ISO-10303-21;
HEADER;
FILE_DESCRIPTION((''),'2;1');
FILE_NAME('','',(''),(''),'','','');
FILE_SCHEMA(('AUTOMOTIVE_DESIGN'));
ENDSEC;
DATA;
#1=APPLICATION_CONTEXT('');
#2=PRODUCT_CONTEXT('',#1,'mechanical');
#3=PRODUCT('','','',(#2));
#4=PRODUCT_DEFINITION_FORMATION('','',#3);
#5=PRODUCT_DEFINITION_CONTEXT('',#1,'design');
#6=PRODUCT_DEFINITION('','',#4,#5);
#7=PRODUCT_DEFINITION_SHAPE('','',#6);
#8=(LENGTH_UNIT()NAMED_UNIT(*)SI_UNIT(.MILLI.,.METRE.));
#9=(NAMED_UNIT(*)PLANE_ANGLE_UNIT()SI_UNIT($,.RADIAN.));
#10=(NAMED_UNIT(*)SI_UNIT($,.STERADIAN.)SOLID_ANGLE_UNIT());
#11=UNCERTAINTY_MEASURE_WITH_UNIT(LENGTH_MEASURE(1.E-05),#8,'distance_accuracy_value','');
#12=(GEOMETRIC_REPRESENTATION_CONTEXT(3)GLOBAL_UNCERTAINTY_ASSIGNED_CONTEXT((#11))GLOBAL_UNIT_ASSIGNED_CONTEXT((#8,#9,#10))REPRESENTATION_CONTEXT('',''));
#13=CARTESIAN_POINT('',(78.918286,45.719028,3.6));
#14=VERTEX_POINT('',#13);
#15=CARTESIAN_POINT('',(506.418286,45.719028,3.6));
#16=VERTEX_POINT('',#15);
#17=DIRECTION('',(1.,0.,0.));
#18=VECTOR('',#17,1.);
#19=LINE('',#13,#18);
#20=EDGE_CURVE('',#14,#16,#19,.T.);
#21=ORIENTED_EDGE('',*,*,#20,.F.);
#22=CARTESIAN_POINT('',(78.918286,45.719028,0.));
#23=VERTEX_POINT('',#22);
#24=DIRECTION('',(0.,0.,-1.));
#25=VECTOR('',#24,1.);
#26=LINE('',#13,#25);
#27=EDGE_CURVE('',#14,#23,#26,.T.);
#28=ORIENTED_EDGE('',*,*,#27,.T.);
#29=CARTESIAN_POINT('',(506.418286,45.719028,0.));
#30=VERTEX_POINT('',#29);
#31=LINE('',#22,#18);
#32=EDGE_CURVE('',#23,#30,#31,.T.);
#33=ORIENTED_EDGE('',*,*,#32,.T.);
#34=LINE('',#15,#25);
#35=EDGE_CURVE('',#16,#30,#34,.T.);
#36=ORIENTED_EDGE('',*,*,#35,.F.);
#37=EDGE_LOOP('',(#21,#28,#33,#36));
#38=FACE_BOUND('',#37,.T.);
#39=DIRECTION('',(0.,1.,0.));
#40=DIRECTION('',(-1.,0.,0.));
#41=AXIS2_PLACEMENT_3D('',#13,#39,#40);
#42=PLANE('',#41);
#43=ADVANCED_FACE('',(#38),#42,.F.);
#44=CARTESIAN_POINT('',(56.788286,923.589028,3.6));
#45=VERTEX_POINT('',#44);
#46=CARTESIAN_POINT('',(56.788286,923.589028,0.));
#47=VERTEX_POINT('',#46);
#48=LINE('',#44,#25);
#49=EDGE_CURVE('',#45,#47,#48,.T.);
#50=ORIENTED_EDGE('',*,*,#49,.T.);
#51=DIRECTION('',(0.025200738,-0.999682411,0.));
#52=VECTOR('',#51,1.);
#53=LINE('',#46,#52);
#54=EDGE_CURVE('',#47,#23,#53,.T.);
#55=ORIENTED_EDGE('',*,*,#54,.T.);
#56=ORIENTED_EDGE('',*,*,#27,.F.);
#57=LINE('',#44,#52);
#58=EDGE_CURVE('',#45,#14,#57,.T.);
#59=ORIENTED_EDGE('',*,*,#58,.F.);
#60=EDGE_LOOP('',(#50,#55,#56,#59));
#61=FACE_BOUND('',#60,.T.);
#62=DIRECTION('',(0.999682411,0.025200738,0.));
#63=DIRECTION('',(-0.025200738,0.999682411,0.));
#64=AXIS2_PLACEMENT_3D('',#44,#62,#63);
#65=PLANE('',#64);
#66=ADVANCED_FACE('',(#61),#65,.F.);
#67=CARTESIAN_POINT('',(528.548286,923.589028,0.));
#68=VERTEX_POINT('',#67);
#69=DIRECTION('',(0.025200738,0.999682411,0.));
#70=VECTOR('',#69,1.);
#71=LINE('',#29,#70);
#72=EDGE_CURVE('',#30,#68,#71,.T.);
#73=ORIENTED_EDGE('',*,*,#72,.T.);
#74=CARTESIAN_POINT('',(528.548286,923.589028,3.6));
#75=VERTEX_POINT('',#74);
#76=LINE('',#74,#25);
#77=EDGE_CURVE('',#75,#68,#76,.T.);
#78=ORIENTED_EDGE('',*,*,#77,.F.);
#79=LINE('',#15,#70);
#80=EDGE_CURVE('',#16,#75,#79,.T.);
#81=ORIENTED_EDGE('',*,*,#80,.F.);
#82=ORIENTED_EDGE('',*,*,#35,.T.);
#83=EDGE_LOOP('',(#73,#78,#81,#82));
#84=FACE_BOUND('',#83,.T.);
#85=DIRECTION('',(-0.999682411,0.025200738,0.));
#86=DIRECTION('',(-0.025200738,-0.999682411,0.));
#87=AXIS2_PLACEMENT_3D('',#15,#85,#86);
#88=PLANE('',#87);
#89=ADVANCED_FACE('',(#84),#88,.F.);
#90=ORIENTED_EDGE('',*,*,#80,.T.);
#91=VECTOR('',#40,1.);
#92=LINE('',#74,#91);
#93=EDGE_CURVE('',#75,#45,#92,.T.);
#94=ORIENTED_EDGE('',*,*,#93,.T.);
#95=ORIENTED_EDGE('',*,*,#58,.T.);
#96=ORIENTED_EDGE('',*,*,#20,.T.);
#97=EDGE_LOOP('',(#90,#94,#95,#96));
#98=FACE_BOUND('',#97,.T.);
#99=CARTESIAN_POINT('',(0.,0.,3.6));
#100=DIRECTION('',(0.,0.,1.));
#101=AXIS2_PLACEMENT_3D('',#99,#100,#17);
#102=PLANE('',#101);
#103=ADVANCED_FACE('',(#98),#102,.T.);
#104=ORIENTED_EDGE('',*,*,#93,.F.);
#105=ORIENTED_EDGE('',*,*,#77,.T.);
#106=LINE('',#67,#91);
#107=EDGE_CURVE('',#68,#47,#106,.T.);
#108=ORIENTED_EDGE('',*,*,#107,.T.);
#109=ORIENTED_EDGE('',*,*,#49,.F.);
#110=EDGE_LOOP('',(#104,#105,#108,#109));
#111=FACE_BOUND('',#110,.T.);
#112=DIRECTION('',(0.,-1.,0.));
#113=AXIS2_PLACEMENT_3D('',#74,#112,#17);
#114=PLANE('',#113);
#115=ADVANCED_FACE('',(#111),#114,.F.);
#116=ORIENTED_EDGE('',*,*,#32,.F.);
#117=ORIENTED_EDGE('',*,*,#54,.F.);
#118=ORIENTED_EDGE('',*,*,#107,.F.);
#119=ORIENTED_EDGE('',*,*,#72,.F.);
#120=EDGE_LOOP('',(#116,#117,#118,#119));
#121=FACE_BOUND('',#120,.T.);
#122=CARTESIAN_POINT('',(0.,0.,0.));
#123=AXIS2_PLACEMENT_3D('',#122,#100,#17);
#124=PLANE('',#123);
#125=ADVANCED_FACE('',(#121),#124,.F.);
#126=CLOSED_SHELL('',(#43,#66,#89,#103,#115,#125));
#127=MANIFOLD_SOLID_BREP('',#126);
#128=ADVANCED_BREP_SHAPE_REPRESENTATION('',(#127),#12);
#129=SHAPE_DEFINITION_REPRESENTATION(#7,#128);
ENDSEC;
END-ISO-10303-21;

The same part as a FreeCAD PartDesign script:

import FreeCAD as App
import Part
import Sketcher
from FreeCAD import Vector


def add_polygon(sketch, points):
    """Adds a closed chain of lines whose ends are joined by coincident constraints."""
    first, n = sketch.GeometryCount, len(points)
    for a, b in zip(points, points[1:] + points[:1]):
        sketch.addGeometry(Part.LineSegment(App.Vector(*a, 0), App.Vector(*b, 0)), False)
    for i in range(n):
        sketch.addConstraint(Sketcher.Constraint("Coincident", first + i, 2, first + (i + 1) % n, 1))

doc = App.newDocument("Part")
body = doc.addObject("PartDesign::Body", "Body")

sketch1 = body.newObject("Sketcher::SketchObject", "Sketch")
sketch1.AttachmentSupport = (doc.getObject("XY_Plane"), [""])
sketch1.MapMode = "FlatFace"
add_polygon(sketch1, [(79, 46), (506, 46), (529, 924), (57, 924)])
sketch1.addConstraint(Sketcher.Constraint("Horizontal", 0))
sketch1.addConstraint(Sketcher.Constraint("Horizontal", 2))
sketch1.addConstraint(Sketcher.Constraint("Equal", 1, 3))
sketch1.addConstraint(Sketcher.Constraint("DistanceX", 0, 1, 0, 2, 427.5))
sketch1.addConstraint(Sketcher.Constraint("DistanceX", 2, 2, 2, 1, 471.76))
sketch1.addConstraint(Sketcher.Constraint("DistanceY", 0, 2, 1, 2, 877.87))
sketch1.addConstraint(Sketcher.Constraint("DistanceX", -1, 1, 0, 2, 506.418286))
sketch1.addConstraint(Sketcher.Constraint("DistanceY", -1, 1, 0, 2, 45.719028))
pad1 = body.newObject("PartDesign::Pad", "Pad")
pad1.Profile = sketch1
pad1.Length = 3.6

doc.recompute()
